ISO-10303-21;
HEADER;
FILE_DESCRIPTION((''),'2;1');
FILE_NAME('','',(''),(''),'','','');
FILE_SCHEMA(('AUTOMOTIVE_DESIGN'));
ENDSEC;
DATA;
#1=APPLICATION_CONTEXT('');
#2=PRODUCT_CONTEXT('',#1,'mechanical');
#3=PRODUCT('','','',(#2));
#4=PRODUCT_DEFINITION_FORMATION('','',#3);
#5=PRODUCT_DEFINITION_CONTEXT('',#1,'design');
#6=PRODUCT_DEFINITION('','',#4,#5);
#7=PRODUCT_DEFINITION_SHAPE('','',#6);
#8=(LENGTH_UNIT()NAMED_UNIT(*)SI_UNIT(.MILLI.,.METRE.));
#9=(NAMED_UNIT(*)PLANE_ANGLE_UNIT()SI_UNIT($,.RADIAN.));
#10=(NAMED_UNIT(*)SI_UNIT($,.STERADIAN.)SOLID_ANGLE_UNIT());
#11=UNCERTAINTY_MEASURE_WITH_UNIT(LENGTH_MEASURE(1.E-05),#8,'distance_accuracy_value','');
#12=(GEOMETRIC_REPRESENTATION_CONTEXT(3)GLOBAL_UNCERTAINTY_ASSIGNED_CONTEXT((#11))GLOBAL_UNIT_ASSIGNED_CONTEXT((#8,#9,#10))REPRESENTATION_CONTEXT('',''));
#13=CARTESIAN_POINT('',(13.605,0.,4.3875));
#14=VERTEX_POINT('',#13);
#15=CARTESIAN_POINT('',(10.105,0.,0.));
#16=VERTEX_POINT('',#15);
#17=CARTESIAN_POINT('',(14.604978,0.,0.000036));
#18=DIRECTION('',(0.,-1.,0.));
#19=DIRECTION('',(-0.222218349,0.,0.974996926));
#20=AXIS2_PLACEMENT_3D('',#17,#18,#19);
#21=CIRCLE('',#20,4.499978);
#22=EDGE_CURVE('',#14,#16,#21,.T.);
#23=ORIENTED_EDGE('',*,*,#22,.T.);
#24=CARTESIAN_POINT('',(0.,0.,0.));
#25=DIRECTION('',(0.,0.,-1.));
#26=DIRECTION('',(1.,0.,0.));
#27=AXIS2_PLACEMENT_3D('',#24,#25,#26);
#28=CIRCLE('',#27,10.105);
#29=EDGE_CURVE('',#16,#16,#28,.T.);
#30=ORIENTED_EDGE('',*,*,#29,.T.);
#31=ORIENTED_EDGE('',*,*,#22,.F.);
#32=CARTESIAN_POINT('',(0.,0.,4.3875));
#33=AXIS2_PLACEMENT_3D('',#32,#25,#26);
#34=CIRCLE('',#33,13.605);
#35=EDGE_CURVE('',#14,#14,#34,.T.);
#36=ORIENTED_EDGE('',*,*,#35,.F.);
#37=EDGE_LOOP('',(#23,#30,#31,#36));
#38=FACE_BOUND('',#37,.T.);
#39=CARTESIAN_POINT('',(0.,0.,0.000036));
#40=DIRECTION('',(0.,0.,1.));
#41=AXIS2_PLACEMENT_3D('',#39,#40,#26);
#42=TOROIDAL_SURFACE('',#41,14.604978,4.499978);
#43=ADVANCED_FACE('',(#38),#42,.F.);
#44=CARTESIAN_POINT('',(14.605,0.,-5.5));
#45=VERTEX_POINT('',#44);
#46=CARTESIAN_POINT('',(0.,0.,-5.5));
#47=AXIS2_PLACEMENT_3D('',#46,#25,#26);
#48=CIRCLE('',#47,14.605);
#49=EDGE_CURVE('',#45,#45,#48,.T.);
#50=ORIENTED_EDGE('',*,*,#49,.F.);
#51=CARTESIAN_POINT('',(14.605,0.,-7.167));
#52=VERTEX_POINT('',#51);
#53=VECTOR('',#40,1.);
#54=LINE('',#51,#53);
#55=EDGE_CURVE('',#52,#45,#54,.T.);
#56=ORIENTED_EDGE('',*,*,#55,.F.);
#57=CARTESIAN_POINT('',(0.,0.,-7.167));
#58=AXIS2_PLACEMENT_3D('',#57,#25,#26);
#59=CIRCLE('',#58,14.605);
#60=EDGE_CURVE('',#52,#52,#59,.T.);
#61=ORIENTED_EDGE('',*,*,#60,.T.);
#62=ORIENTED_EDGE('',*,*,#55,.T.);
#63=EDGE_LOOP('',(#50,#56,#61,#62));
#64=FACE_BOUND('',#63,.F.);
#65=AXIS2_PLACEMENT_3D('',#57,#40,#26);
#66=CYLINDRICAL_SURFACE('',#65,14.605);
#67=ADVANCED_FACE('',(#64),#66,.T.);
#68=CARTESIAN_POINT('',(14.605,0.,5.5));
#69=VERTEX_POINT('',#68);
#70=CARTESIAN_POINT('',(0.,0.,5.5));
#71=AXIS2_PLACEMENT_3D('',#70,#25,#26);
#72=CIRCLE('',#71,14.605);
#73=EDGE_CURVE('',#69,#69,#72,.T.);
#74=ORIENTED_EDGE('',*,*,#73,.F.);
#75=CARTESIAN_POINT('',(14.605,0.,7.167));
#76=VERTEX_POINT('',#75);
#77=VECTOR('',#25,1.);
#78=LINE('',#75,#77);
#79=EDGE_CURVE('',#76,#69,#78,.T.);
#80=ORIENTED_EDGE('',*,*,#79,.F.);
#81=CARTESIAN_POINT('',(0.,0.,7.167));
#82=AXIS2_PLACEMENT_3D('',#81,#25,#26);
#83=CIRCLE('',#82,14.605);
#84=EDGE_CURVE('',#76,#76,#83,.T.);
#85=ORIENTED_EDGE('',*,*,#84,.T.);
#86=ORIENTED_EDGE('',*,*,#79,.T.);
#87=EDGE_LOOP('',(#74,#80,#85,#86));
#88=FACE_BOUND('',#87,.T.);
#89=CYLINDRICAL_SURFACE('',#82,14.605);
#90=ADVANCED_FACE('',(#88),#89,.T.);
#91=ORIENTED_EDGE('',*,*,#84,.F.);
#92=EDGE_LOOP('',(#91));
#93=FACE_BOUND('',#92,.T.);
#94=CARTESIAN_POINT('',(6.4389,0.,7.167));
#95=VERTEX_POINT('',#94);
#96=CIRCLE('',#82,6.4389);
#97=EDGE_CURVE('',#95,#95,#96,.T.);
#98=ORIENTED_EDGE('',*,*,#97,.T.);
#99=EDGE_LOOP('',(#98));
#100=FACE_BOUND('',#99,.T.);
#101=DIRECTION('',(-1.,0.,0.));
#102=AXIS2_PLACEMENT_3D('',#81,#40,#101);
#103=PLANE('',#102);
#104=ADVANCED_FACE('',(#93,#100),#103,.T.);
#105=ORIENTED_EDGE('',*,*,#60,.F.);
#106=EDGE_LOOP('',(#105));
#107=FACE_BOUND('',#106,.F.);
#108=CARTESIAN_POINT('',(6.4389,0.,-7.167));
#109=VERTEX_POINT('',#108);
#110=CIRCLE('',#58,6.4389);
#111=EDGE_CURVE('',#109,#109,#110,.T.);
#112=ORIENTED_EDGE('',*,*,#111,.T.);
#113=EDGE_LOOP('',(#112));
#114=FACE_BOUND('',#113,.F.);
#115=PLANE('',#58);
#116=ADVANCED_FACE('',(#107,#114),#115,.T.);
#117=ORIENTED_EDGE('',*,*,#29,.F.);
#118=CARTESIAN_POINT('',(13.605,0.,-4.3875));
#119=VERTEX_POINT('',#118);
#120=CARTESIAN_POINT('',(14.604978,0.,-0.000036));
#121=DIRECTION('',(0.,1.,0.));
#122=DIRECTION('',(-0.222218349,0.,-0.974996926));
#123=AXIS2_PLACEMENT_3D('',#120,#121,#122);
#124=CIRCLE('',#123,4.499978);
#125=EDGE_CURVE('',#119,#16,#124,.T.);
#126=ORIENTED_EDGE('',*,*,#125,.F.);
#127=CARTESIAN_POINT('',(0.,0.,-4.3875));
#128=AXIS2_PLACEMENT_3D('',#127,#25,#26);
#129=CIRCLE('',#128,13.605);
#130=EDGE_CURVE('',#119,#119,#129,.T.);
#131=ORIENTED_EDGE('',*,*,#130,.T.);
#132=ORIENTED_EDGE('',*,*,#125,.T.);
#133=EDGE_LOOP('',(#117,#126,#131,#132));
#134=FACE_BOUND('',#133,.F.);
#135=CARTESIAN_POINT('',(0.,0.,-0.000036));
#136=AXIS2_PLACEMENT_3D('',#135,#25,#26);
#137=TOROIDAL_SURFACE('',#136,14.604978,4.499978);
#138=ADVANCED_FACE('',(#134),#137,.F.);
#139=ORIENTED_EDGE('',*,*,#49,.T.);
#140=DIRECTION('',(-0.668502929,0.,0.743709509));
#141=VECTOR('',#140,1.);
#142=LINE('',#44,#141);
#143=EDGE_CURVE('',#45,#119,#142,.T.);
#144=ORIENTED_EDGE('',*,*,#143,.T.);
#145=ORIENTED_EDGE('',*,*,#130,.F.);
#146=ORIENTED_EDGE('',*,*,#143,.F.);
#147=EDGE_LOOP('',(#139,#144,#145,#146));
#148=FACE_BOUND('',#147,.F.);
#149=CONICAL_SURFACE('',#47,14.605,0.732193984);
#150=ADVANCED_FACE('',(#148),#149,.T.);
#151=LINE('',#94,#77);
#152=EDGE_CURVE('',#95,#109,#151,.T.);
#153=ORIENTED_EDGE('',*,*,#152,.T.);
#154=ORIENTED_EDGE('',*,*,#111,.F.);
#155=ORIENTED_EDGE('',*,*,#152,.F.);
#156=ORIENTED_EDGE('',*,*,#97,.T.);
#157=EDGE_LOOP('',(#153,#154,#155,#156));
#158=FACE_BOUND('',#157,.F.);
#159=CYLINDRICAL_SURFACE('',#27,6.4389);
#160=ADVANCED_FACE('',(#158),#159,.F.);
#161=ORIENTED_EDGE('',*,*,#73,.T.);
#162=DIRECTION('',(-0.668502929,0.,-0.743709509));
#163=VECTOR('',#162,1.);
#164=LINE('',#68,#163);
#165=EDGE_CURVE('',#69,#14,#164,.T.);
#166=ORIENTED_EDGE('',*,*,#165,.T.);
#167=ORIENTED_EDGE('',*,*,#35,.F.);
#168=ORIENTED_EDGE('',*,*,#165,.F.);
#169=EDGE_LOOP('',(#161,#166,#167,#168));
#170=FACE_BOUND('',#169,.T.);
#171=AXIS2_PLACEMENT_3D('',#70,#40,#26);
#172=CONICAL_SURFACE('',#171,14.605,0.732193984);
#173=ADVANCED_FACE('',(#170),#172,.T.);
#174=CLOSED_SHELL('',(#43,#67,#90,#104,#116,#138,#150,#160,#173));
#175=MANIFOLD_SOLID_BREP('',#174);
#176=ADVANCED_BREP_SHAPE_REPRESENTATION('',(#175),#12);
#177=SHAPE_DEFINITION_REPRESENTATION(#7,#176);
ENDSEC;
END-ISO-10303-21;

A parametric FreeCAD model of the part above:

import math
import FreeCAD as App
import Part
import Sketcher
from FreeCAD import Vector
Q = App.Units.Quantity

doc = App.newDocument("Part")
body = doc.addObject("PartDesign::Body", "Body")

# Sketch on XZ plane
sketch1 = doc.addObject("Sketcher::SketchObject", "Sketch")
body.addObject(sketch1)
sketch1.AttachmentSupport = (doc.XZ_Plane, [""])
sketch1.MapMode = "FlatFace"
sketch1.addGeometry([
    Part.LineSegment(Vector(6.4, -7.2, 0), Vector(6.4, 0, 0)),  # 0
    Part.LineSegment(Vector(6.4, 0, 0), Vector(10.1, 0, 0)),  # 1
    Part.ArcOfCircle(Part.Circle(Vector(14.6, 0, 0), Vector(0, 0, 1), 4.5), math.radians(180), math.radians(257)),  # 2
    Part.LineSegment(Vector(13.6, -4.4, 0), Vector(14.6, -5.5, 0)),  # 3
    Part.LineSegment(Vector(14.6, -5.5, 0), Vector(14.6, -7.2, 0)),  # 4
    Part.LineSegment(Vector(14.6, -7.2, 0), Vector(6.4, -7.2, 0)),  # 5
], False)
sketch1.addConstraint([
    Sketcher.Constraint("Coincident", 0, 2, 1, 1),
    Sketcher.Constraint("Coincident", 1, 2, 2, 1),
    Sketcher.Constraint("Coincident", 2, 2, 3, 1),
    Sketcher.Constraint("Coincident", 3, 2, 4, 1),
    Sketcher.Constraint("Coincident", 4, 2, 5, 1),
    Sketcher.Constraint("Coincident", 5, 2, 0, 1),
    Sketcher.Constraint("Vertical", 0),
    Sketcher.Constraint("Horizontal", 1),
    Sketcher.Constraint("Vertical", 4),
    Sketcher.Constraint("Horizontal", 5),
    Sketcher.Constraint("PointOnObject", 2, 3, -1),
    Sketcher.Constraint("PointOnObject", 0, 2, -1),
    Sketcher.Constraint("Vertical", 2, 3, 3, 2),
    Sketcher.Constraint("Radius", 2, Q("4.5 mm")),
    Sketcher.Constraint("DistanceX", 2, 2, 2, 3, Q("1 mm")),
    Sketcher.Constraint("DistanceX", 5, 2, 5, 1, Q("8.166 mm")),
    Sketcher.Constraint("DistanceY", 4, 2, 4, 1, Q("1.667 mm")),
    Sketcher.Constraint("DistanceY", 3, 2, -1, 1, Q("5.5 mm")),
    Sketcher.Constraint("DistanceX", -1, 1, 2, 3, Q("14.605 mm")),
])
revolution = doc.addObject("PartDesign::Revolution", "Revolution")
body.addObject(revolution)
revolution.Profile = sketch1
revolution.ReferenceAxis = (sketch1, ["V_Axis"])
revolution.Angle = 360
doc.recompute()

mirrored = doc.addObject("PartDesign::Mirrored", "Mirrored")
body.addObject(mirrored)
mirrored.TransformMode = "Transform body"
mirrored.MirrorPlane = (doc.XY_Plane, [""])
body.Tip = mirrored

doc.recompute()
